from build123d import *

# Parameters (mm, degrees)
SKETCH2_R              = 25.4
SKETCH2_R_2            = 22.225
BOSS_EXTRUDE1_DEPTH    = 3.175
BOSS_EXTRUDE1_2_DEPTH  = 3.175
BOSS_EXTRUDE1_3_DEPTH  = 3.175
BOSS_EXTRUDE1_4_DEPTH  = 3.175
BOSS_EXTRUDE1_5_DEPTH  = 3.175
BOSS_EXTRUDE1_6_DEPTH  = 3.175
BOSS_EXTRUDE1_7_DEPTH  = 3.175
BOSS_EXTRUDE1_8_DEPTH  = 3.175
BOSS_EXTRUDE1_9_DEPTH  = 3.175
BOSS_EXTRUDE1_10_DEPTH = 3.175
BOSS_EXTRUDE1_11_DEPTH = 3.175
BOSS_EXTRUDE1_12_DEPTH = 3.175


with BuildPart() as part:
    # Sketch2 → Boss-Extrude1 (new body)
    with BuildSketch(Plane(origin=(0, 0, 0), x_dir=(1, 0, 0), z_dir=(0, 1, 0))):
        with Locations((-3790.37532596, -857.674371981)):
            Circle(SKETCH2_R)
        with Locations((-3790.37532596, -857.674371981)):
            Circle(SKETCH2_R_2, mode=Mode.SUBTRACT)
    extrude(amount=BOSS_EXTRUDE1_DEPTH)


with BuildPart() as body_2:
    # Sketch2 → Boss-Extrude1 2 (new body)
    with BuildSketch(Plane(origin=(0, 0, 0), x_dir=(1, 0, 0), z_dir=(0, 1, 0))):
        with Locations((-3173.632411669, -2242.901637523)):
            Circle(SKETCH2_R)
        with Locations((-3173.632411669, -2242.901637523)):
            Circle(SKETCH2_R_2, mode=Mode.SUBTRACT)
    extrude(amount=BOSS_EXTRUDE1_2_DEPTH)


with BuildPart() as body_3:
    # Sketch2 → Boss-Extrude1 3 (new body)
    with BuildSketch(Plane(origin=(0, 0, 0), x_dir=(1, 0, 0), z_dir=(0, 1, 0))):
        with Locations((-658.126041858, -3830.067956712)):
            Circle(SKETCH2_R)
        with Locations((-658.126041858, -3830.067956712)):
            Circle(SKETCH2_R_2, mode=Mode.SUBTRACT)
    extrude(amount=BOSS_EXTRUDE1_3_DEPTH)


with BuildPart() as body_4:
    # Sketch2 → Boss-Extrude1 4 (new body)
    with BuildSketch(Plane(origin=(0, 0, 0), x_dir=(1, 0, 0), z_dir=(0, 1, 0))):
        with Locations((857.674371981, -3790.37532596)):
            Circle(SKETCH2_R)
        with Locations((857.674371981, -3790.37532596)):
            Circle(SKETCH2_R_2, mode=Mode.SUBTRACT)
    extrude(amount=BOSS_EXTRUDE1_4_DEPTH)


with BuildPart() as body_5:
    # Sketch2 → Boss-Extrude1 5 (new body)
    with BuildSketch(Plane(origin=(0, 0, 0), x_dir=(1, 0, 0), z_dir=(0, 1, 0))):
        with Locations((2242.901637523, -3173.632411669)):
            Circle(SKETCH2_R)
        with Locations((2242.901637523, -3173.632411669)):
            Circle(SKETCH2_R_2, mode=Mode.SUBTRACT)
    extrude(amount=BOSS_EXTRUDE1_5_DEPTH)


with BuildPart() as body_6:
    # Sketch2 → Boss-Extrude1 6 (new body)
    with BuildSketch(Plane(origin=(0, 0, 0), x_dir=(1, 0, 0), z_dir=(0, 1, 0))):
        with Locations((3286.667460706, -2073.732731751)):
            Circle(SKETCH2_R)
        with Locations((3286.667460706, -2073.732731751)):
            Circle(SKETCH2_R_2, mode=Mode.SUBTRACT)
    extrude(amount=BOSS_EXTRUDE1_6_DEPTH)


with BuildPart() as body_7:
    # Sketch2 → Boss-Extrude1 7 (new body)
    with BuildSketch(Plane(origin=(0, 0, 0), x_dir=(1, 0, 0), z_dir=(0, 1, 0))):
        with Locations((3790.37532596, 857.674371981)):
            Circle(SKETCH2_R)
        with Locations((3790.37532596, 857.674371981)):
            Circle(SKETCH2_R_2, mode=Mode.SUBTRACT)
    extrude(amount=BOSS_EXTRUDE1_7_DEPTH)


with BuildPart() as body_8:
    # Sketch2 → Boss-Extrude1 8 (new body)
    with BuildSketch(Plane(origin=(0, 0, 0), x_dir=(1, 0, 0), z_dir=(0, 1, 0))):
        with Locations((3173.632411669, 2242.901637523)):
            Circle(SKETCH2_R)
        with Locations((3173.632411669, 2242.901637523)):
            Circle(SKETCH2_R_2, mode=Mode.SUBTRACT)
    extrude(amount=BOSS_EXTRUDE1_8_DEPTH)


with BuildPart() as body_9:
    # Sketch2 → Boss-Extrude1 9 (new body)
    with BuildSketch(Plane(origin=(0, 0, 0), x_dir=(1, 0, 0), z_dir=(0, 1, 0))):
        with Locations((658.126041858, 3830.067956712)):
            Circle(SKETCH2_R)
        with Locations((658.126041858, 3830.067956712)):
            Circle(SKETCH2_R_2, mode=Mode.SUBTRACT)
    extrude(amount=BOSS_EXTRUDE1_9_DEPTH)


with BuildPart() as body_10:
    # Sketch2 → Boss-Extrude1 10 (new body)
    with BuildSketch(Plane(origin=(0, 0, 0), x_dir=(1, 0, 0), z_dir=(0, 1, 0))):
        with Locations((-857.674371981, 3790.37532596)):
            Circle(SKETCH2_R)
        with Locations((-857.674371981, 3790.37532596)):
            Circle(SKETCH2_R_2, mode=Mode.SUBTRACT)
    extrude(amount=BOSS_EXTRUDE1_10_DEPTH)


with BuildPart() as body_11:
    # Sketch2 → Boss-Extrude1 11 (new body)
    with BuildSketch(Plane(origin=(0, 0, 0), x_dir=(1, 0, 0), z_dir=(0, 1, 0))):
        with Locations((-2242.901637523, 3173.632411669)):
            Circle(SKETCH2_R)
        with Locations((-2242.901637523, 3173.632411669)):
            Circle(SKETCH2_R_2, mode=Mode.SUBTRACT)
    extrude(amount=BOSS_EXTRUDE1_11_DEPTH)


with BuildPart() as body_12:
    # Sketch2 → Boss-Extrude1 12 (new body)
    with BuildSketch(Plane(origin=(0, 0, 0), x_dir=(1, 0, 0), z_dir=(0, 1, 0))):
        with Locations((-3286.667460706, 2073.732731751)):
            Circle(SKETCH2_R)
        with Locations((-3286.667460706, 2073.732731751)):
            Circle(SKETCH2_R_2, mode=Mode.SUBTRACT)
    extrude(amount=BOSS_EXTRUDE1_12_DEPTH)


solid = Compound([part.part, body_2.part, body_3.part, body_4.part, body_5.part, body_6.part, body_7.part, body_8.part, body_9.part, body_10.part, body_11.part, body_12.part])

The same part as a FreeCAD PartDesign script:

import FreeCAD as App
import Part
import Sketcher
Q = App.Units.Quantity

doc = App.newDocument("Part")
body = doc.addObject("PartDesign::Body", "Body")

# Sketch on XZ plane
sketch1 = doc.addObject("Sketcher::SketchObject", "Sketch")
body.addObject(sketch1)
sketch1.AttachmentSupport = (doc.XZ_Plane, [""])
sketch1.MapMode = "FlatFace"
sketch1.addGeometry(Part.Circle(App.Vector(-3790, 858, 0), App.Vector(0, 0, 1), 25), False)
sketch1.addGeometry(Part.Circle(App.Vector(-3790, 858, 0), App.Vector(0, 0, 1), 22), False)
sketch1.addConstraint(Sketcher.Constraint("Coincident", 1, 3, 0, 3))
sketch1.addConstraint(Sketcher.Constraint("Diameter", 0, Q("2 in")))
sketch1.addConstraint(Sketcher.Constraint("Diameter", 1, Q("1.75 in")))
sketch1.addConstraint(Sketcher.Constraint("DistanceY", -1, 1, 0, 3, 857.674372))
sketch1.addConstraint(Sketcher.Constraint("DistanceX", 0, 3, -1, 1, 3790.375326))
pad1 = doc.addObject("PartDesign::Pad", "Pad")
body.addObject(pad1)
pad1.Profile = sketch1
pad1.Length = Q("0.125 in")
pad1.Reversed = True
body2 = doc.addObject("PartDesign::Body", "Body001")

# Sketch on XZ plane
sketch2 = doc.addObject("Sketcher::SketchObject", "Sketch001")
body2.addObject(sketch2)
sketch2.AttachmentSupport = (doc.getObject("XZ_Plane001"), [""])
sketch2.MapMode = "FlatFace"
sketch2.addGeometry(Part.Circle(App.Vector(-3174, 2243, 0), App.Vector(0, 0, 1), 25), False)
sketch2.addGeometry(Part.Circle(App.Vector(-3174, 2243, 0), App.Vector(0, 0, 1), 22), False)
sketch2.addConstraint(Sketcher.Constraint("Coincident", 1, 3, 0, 3))
sketch2.addConstraint(Sketcher.Constraint("Diameter", 0, Q("2 in")))
sketch2.addConstraint(Sketcher.Constraint("Diameter", 1, Q("1.75 in")))
sketch2.addConstraint(Sketcher.Constraint("DistanceX", 0, 3, -1, 1, 3173.632412))
sketch2.addConstraint(Sketcher.Constraint("DistanceY", -1, 1, 0, 3, 2242.901638))
pad2 = doc.addObject("PartDesign::Pad", "Pad001")
body2.addObject(pad2)
pad2.Profile = sketch2
pad2.Length = Q("0.125 in")
pad2.Reversed = True
body3 = doc.addObject("PartDesign::Body", "Body002")

# Sketch on XZ plane
sketch3 = doc.addObject("Sketcher::SketchObject", "Sketch002")
body3.addObject(sketch3)
sketch3.AttachmentSupport = (doc.getObject("XZ_Plane002"), [""])
sketch3.MapMode = "FlatFace"
sketch3.addGeometry(Part.Circle(App.Vector(-658, 3830, 0), App.Vector(0, 0, 1), 25), False)
sketch3.addGeometry(Part.Circle(App.Vector(-658, 3830, 0), App.Vector(0, 0, 1), 22), False)
sketch3.addConstraint(Sketcher.Constraint("Coincident", 1, 3, 0, 3))
sketch3.addConstraint(Sketcher.Constraint("Diameter", 0, Q("2 in")))
sketch3.addConstraint(Sketcher.Constraint("Diameter", 1, Q("1.75 in")))
sketch3.addConstraint(Sketcher.Constraint("DistanceX", 0, 3, -1, 1, 658.126042))
sketch3.addConstraint(Sketcher.Constraint("DistanceY", -1, 1, 0, 3, 3830.067957))
pad3 = doc.addObject("PartDesign::Pad", "Pad002")
body3.addObject(pad3)
pad3.Profile = sketch3
pad3.Length = Q("0.125 in")
pad3.Reversed = True
body4 = doc.addObject("PartDesign::Body", "Body003")

# Sketch on XZ plane
sketch4 = doc.addObject("Sketcher::SketchObject", "Sketch003")
body4.addObject(sketch4)
sketch4.AttachmentSupport = (doc.getObject("XZ_Plane003"), [""])
sketch4.MapMode = "FlatFace"
sketch4.addGeometry(Part.Circle(App.Vector(858, 3790, 0), App.Vector(0, 0, 1), 25), False)
sketch4.addGeometry(Part.Circle(App.Vector(858, 3790, 0), App.Vector(0, 0, 1), 22), False)
sketch4.addConstraint(Sketcher.Constraint("Coincident", 1, 3, 0, 3))
sketch4.addConstraint(Sketcher.Constraint("Diameter", 0, Q("2 in")))
sketch4.addConstraint(Sketcher.Constraint("Diameter", 1, Q("1.75 in")))
sketch4.addConstraint(Sketcher.Constraint("DistanceX", -1, 1, 0, 3, 857.674372))
sketch4.addConstraint(Sketcher.Constraint("DistanceY", -1, 1, 0, 3, 3790.375326))
pad4 = doc.addObject("PartDesign::Pad", "Pad003")
body4.addObject(pad4)
pad4.Profile = sketch4
pad4.Length = Q("0.125 in")
pad4.Reversed = True
body5 = doc.addObject("PartDesign::Body", "Body004")

# Sketch on XZ plane
sketch5 = doc.addObject("Sketcher::SketchObject", "Sketch004")
body5.addObject(sketch5)
sketch5.AttachmentSupport = (doc.getObject("XZ_Plane004"), [""])
sketch5.MapMode = "FlatFace"
sketch5.addGeometry(Part.Circle(App.Vector(2243, 3174, 0), App.Vector(0, 0, 1), 25), False)
sketch5.addGeometry(Part.Circle(App.Vector(2243, 3174, 0), App.Vector(0, 0, 1), 22), False)
sketch5.addConstraint(Sketcher.Constraint("Coincident", 1, 3, 0, 3))
sketch5.addConstraint(Sketcher.Constraint("Diameter", 0, Q("2 in")))
sketch5.addConstraint(Sketcher.Constraint("Diameter", 1, Q("1.75 in")))
sketch5.addConstraint(Sketcher.Constraint("DistanceY", -1, 1, 0, 3, 3173.632412))
sketch5.addConstraint(Sketcher.Constraint("DistanceX", -1, 1, 0, 3, 2242.901638))
pad5 = doc.addObject("PartDesign::Pad", "Pad004")
body5.addObject(pad5)
pad5.Profile = sketch5
pad5.Length = Q("0.125 in")
pad5.Reversed = True
body6 = doc.addObject("PartDesign::Body", "Body005")

# Sketch on XZ plane
sketch6 = doc.addObject("Sketcher::SketchObject", "Sketch005")
body6.addObject(sketch6)
sketch6.AttachmentSupport = (doc.getObject("XZ_Plane005"), [""])
sketch6.MapMode = "FlatFace"
sketch6.addGeometry(Part.Circle(App.Vector(3287, 2074, 0), App.Vector(0, 0, 1), 25), False)
sketch6.addGeometry(Part.Circle(App.Vector(3287, 2074, 0), App.Vector(0, 0, 1), 22), False)
sketch6.addConstraint(Sketcher.Constraint("Coincident", 1, 3, 0, 3))
sketch6.addConstraint(Sketcher.Constraint("Diameter", 0, Q("2 in")))
sketch6.addConstraint(Sketcher.Constraint("Diameter", 1, Q("1.75 in")))
sketch6.addConstraint(Sketcher.Constraint("DistanceX", -1, 1, 0, 3, 3286.667461))
sketch6.addConstraint(Sketcher.Constraint("DistanceY", -1, 1, 0, 3, 2073.732732))
pad6 = doc.addObject("PartDesign::Pad", "Pad005")
body6.addObject(pad6)
pad6.Profile = sketch6
pad6.Length = Q("0.125 in")
pad6.Reversed = True
body7 = doc.addObject("PartDesign::Body", "Body006")

# Sketch on XZ plane
sketch7 = doc.addObject("Sketcher::SketchObject", "Sketch006")
body7.addObject(sketch7)
sketch7.AttachmentSupport = (doc.getObject("XZ_Plane006"), [""])
sketch7.MapMode = "FlatFace"
sketch7.addGeometry(Part.Circle(App.Vector(3790, -858, 0), App.Vector(0, 0, 1), 25), False)
sketch7.addGeometry(Part.Circle(App.Vector(3790, -858, 0), App.Vector(0, 0, 1), 22), False)
sketch7.addConstraint(Sketcher.Constraint("Coincident", 1, 3, 0, 3))
sketch7.addConstraint(Sketcher.Constraint("Diameter", 0, Q("2 in")))
sketch7.addConstraint(Sketcher.Constraint("Diameter", 1, Q("1.75 in")))
sketch7.addConstraint(Sketcher.Constraint("DistanceY", 0, 3, -1, 1, 857.674372))
sketch7.addConstraint(Sketcher.Constraint("DistanceX", -1, 1, 0, 3, 3790.375326))
pad7 = doc.addObject("PartDesign::Pad", "Pad006")
body7.addObject(pad7)
pad7.Profile = sketch7
pad7.Length = Q("0.125 in")
pad7.Reversed = True
body8 = doc.addObject("PartDesign::Body", "Body007")

# Sketch on XZ plane
sketch8 = doc.addObject("Sketcher::SketchObject", "Sketch007")
body8.addObject(sketch8)
sketch8.AttachmentSupport = (doc.getObject("XZ_Plane007"), [""])
sketch8.MapMode = "FlatFace"
sketch8.addGeometry(Part.Circle(App.Vector(3174, -2243, 0), App.Vector(0, 0, 1), 25), False)
sketch8.addGeometry(Part.Circle(App.Vector(3174, -2243, 0), App.Vector(0, 0, 1), 22), False)
sketch8.addConstraint(Sketcher.Constraint("Coincident", 1, 3, 0, 3))
sketch8.addConstraint(Sketcher.Constraint("Diameter", 0, Q("2 in")))
sketch8.addConstraint(Sketcher.Constraint("Diameter", 1, Q("1.75 in")))
sketch8.addConstraint(Sketcher.Constraint("DistanceX", -1, 1, 0, 3, 3173.632412))
sketch8.addConstraint(Sketcher.Constraint("DistanceY", 0, 3, -1, 1, 2242.901638))
pad8 = doc.addObject("PartDesign::Pad", "Pad007")
body8.addObject(pad8)
pad8.Profile = sketch8
pad8.Length = Q("0.125 in")
pad8.Reversed = True
body9 = doc.addObject("PartDesign::Body", "Body008")

# Sketch on XZ plane
sketch9 = doc.addObject("Sketcher::SketchObject", "Sketch008")
body9.addObject(sketch9)
sketch9.AttachmentSupport = (doc.getObject("XZ_Plane008"), [""])
sketch9.MapMode = "FlatFace"
sketch9.addGeometry(Part.Circle(App.Vector(658, -3830, 0), App.Vector(0, 0, 1), 25), False)
sketch9.addGeometry(Part.Circle(App.Vector(658, -3830, 0), App.Vector(0, 0, 1), 22), False)
sketch9.addConstraint(Sketcher.Constraint("Coincident", 1, 3, 0, 3))
sketch9.addConstraint(Sketcher.Constraint("Diameter", 0, Q("2 in")))
sketch9.addConstraint(Sketcher.Constraint("Diameter", 1, Q("1.75 in")))
sketch9.addConstraint(Sketcher.Constraint("DistanceX", -1, 1, 0, 3, 658.126042))
sketch9.addConstraint(Sketcher.Constraint("DistanceY", 0, 3, -1, 1, 3830.067957))
pad9 = doc.addObject("PartDesign::Pad", "Pad008")
body9.addObject(pad9)
pad9.Profile = sketch9
pad9.Length = Q("0.125 in")
pad9.Reversed = True
body10 = doc.addObject("PartDesign::Body", "Body009")

# Sketch on XZ plane
sketch10 = doc.addObject("Sketcher::SketchObject", "Sketch009")
body10.addObject(sketch10)
sketch10.AttachmentSupport = (doc.getObject("XZ_Plane009"), [""])
sketch10.MapMode = "FlatFace"
sketch10.addGeometry(Part.Circle(App.Vector(-858, -3790, 0), App.Vector(0, 0, 1), 25), False)
sketch10.addGeometry(Part.Circle(App.Vector(-858, -3790, 0), App.Vector(0, 0, 1), 22), False)
sketch10.addConstraint(Sketcher.Constraint("Coincident", 1, 3, 0, 3))
sketch10.addConstraint(Sketcher.Constraint("Diameter", 0, Q("2 in")))
sketch10.addConstraint(Sketcher.Constraint("Diameter", 1, Q("1.75 in")))
sketch10.addConstraint(Sketcher.Constraint("DistanceX", 0, 3, -1, 1, 857.674372))
sketch10.addConstraint(Sketcher.Constraint("DistanceY", 0, 3, -1, 1, 3790.375326))
pad10 = doc.addObject("PartDesign::Pad", "Pad009")
body10.addObject(pad10)
pad10.Profile = sketch10
pad10.Length = Q("0.125 in")
pad10.Reversed = True
body11 = doc.addObject("PartDesign::Body", "Body010")

# Sketch on XZ plane
sketch11 = doc.addObject("Sketcher::SketchObject", "Sketch010")
body11.addObject(sketch11)
sketch11.AttachmentSupport = (doc.getObject("XZ_Plane010"), [""])
sketch11.MapMode = "FlatFace"
sketch11.addGeometry(Part.Circle(App.Vector(-2243, -3174, 0), App.Vector(0, 0, 1), 25), False)
sketch11.addGeometry(Part.Circle(App.Vector(-2243, -3174, 0), App.Vector(0, 0, 1), 22), False)
sketch11.addConstraint(Sketcher.Constraint("Coincident", 1, 3, 0, 3))
sketch11.addConstraint(Sketcher.Constraint("Diameter", 0, Q("2 in")))
sketch11.addConstraint(Sketcher.Constraint("Diameter", 1, Q("1.75 in")))
sketch11.addConstraint(Sketcher.Constraint("DistanceY", 0, 3, -1, 1, 3173.632412))
sketch11.addConstraint(Sketcher.Constraint("DistanceX", 0, 3, -1, 1, 2242.901638))
pad11 = doc.addObject("PartDesign::Pad", "Pad010")
body11.addObject(pad11)
pad11.Profile = sketch11
pad11.Length = Q("0.125 in")
pad11.Reversed = True
body12 = doc.addObject("PartDesign::Body", "Body011")

# Sketch on XZ plane
sketch12 = doc.addObject("Sketcher::SketchObject", "Sketch011")
body12.addObject(sketch12)
sketch12.AttachmentSupport = (doc.getObject("XZ_Plane011"), [""])
sketch12.MapMode = "FlatFace"
sketch12.addGeometry(Part.Circle(App.Vector(-3287, -2074, 0), App.Vector(0, 0, 1), 25), False)
sketch12.addGeometry(Part.Circle(App.Vector(-3287, -2074, 0), App.Vector(0, 0, 1), 22), False)
sketch12.addConstraint(Sketcher.Constraint("Coincident", 1, 3, 0, 3))
sketch12.addConstraint(Sketcher.Constraint("Diameter", 0, Q("2 in")))
sketch12.addConstraint(Sketcher.Constraint("Diameter", 1, Q("1.75 in")))
sketch12.addConstraint(Sketcher.Constraint("DistanceX", 0, 3, -1, 1, 3286.667461))
sketch12.addConstraint(Sketcher.Constraint("DistanceY", 0, 3, -1, 1, 2073.732732))
pad12 = doc.addObject("PartDesign::Pad", "Pad011")
body12.addObject(pad12)
pad12.Profile = sketch12
pad12.Length = Q("0.125 in")
pad12.Reversed = True

doc.recompute()
